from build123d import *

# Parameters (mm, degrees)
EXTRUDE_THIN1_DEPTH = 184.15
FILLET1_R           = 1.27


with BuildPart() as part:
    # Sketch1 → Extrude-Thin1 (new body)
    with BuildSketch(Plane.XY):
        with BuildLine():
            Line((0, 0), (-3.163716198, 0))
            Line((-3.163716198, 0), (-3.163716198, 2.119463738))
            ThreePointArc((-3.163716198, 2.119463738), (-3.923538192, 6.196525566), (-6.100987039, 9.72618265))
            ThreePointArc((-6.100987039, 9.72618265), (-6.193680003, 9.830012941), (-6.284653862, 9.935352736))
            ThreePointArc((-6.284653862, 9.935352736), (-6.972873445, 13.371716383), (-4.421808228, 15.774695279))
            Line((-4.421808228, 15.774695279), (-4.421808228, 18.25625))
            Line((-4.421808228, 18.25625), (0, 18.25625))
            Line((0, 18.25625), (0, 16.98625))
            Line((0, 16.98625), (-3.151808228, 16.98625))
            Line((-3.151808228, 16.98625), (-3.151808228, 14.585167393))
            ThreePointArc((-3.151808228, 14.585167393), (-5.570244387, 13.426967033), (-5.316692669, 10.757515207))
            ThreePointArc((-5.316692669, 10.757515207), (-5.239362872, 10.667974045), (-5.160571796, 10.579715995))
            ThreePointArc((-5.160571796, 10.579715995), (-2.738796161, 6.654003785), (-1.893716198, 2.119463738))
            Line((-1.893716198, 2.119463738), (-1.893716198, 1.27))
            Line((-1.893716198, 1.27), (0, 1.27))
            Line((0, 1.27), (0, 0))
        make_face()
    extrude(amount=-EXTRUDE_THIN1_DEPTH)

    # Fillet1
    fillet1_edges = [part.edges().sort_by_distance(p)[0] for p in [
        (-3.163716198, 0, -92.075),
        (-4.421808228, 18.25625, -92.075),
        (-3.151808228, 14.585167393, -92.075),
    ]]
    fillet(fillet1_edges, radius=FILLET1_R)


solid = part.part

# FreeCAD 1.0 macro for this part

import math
import FreeCAD as App
import Part
import Sketcher

V = App.Vector
Q = App.Units.Quantity


def edges_at(feature, points):
    """Names of the edges that pass closest to the given points."""
    edges = feature.Shape.Edges
    near = lambda p: min(range(len(edges)), key=lambda i: edges[i].distToShape(Part.Vertex(*p))[0])
    return sorted({f"Edge{near(p) + 1}" for p in points})

doc = App.newDocument("Part")
params = doc.addObject("Spreadsheet::Sheet", "Params")
for row, (alias, value) in enumerate([
    ("sketch1_height", "0.05 in"),
    ("pad1_length", "7.25 in"),
    ("fillet_radius", "0.05 in"),
], start=1):
    params.set(f"A{row}", alias)
    params.set(f"B{row}", "=" + value)
    params.setAlias(f"B{row}", alias)

body = doc.addObject("PartDesign::Body", "Body")

sketch1 = doc.addObject("Sketcher::SketchObject", "Sketch")
body.addObject(sketch1)
sketch1.AttachmentSupport = (doc.XY_Plane, [""])
sketch1.MapMode = "FlatFace"
sketch1.addGeometry(Part.LineSegment(V(-3.16, 0, 0), V(0, 0, 0)), False)
sketch1.addGeometry(Part.LineSegment(V(0, 0, 0), V(0, 1.27, 0)), False)
sketch1.addGeometry(Part.LineSegment(V(0, 1.27, 0), V(-1.89, 1.27, 0)), False)
sketch1.addGeometry(Part.LineSegment(V(-1.89, 1.27, 0), V(-1.89, 2.12, 0)), False)
sketch1.addGeometry(Part.ArcOfCircle(Part.Circle(V(-14.48, 2.12, 0), V(0, 0, 1), 12.59), math.radians(0), math.radians(42)), False)
sketch1.addGeometry(Part.ArcOfCircle(Part.Circle(V(0.17, 15.42, 0), V(0, 0, 1), 7.2), math.radians(-139.66), math.radians(-137.77)), False)
sketch1.addGeometry(Part.ArcOfCircle(Part.Circle(V(-3.53, 12.27, 0), V(0, 0, 1), 2.34), math.radians(81), math.radians(220)), False)
sketch1.addGeometry(Part.LineSegment(V(-3.15, 14.59, 0), V(-3.15, 16.99, 0)), False)
sketch1.addGeometry(Part.LineSegment(V(-3.15, 16.99, 0), V(0, 16.99, 0)), False)
sketch1.addGeometry(Part.LineSegment(V(0, 16.99, 0), V(0, 18.26, 0)), False)
sketch1.addGeometry(Part.LineSegment(V(0, 18.26, 0), V(-4.42, 18.26, 0)), False)
sketch1.addGeometry(Part.LineSegment(V(-4.42, 18.26, 0), V(-4.42, 15.77, 0)), False)
sketch1.addGeometry(Part.ArcOfCircle(Part.Circle(V(-3.53, 12.27, 0), V(0, 0, 1), 3.61), math.radians(104), math.radians(220)), False)
sketch1.addGeometry(Part.ArcOfCircle(Part.Circle(V(0.17, 15.42, 0), V(0, 0, 1), 8.47), math.radians(-139.66), math.radians(-137.77)), False)
sketch1.addGeometry(Part.ArcOfCircle(Part.Circle(V(-14.48, 2.12, 0), V(0, 0, 1), 11.32), math.radians(0), math.radians(42)), False)
sketch1.addGeometry(Part.LineSegment(V(-3.16, 2.12, 0), V(-3.16, 0, 0)), False)
sketch1.addConstraint(Sketcher.Constraint("Coincident", 0, 2, 1, 1))
sketch1.addConstraint(Sketcher.Constraint("Coincident", 1, 2, 2, 1))
sketch1.addConstraint(Sketcher.Constraint("Coincident", 2, 2, 3, 1))
sketch1.addConstraint(Sketcher.Constraint("Tangent", 3, 2, 4, 1))
sketch1.addConstraint(Sketcher.Constraint("Tangent", 4, 2, 5, 2))
sketch1.addConstraint(Sketcher.Constraint("Tangent", 5, 1, 6, 2))
sketch1.addConstraint(Sketcher.Constraint("Coincident", 6, 1, 7, 1))
sketch1.addConstraint(Sketcher.Constraint("Coincident", 7, 2, 8, 1))
sketch1.addConstraint(Sketcher.Constraint("Coincident", 8, 2, 9, 1))
sketch1.addConstraint(Sketcher.Constraint("Coincident", 9, 2, 10, 1))
sketch1.addConstraint(Sketcher.Constraint("Coincident", 10, 2, 11, 1))
sketch1.addConstraint(Sketcher.Constraint("Coincident", 11, 2, 12, 1))
sketch1.addConstraint(Sketcher.Constraint("Tangent", 12, 2, 13, 1))
sketch1.addConstraint(Sketcher.Constraint("Tangent", 13, 2, 14, 2))
sketch1.addConstraint(Sketcher.Constraint("Tangent", 14, 1, 15, 1))
sketch1.addConstraint(Sketcher.Constraint("Coincident", 15, 2, 0, 1))
sketch1.addConstraint(Sketcher.Constraint("Horizontal", 0))
sketch1.addConstraint(Sketcher.Constraint("Vertical", 1))
sketch1.addConstraint(Sketcher.Constraint("Horizontal", 2))
sketch1.addConstraint(Sketcher.Constraint("Vertical", 3))
sketch1.addConstraint(Sketcher.Constraint("Vertical", 7))
sketch1.addConstraint(Sketcher.Constraint("Horizontal", 8))
sketch1.addConstraint(Sketcher.Constraint("Vertical", 9))
sketch1.addConstraint(Sketcher.Constraint("Horizontal", 10))
sketch1.addConstraint(Sketcher.Constraint("Vertical", 11))
sketch1.addConstraint(Sketcher.Constraint("Vertical", 15))
sketch1.addConstraint(Sketcher.Constraint("Coincident", 0, 2, -1, 1))
sketch1.addConstraint(Sketcher.Constraint("Coincident", 12, 3, 6, 3))
sketch1.addConstraint(Sketcher.Constraint("Coincident", 13, 3, 5, 3))
sketch1.addConstraint(Sketcher.Constraint("Coincident", 14, 3, 4, 3))
sketch1.addConstraint(Sketcher.Constraint("PointOnObject", 8, 2, -2))
sketch1.addConstraint(Sketcher.Constraint("Equal", 1, 9))
sketch1.addConstraint(Sketcher.Constraint("DistanceY", 1, 1, 1, 2, Q("0.05 in")))
sketch1.addConstraint(Sketcher.Constraint("DistanceX", 10, 2, 7, 2, Q("0.05 in")))
sketch1.addConstraint(Sketcher.Constraint("DistanceX", 14, 1, 3, 2, Q("0.05 in")))
sketch1.addConstraint(Sketcher.Constraint("DistanceY", -1, 1, 9, 2, Q("0.71875 in")))
sketch1.addConstraint(Sketcher.Constraint("Radius", 6, Q("2.342291 mm")))
sketch1.addConstraint(Sketcher.Constraint("Radius", 13, Q("8.467921 mm")))
sketch1.addConstraint(Sketcher.Constraint("DistanceY", 4, 2, 5, 1, Q("0.007 in")))
sketch1.addConstraint(Sketcher.Constraint("Radius", 4, Q("12.588284 mm")))
sketch1.addConstraint(Sketcher.Constraint("DistanceX", 8, 1, 8, 2, Q("3.151808 mm")))
sketch1.addConstraint(Sketcher.Constraint("DistanceX", 4, 3, -1, 1, Q("14.482 mm")))
sketch1.addConstraint(Sketcher.Constraint("DistanceY", 6, 3, 13, 3, Q("3.143399 mm")))
sketch1.addConstraint(Sketcher.Constraint("DistanceY", 6, 3, 7, 2, Q("4.712401 mm")))
sketch1.setExpression("Constraints[32]", "Params.sketch1_height")
pad1 = doc.addObject("PartDesign::Pad", "Pad")
body.addObject(pad1)
pad1.Profile = sketch1
pad1.setExpression("Length", "Params.pad1_length")
pad1.Reversed = True
doc.recompute()

fillet = doc.addObject("PartDesign::Fillet", "Fillet")
body.addObject(fillet)
fillet.Base = (pad1, edges_at(pad1, [(-3.164, 0, -92.075), (-4.422, 18.256, -92.075), (-3.152, 14.585, -92.075)]))
fillet.setExpression("Radius", "Params.fillet_radius")

doc.recompute()
